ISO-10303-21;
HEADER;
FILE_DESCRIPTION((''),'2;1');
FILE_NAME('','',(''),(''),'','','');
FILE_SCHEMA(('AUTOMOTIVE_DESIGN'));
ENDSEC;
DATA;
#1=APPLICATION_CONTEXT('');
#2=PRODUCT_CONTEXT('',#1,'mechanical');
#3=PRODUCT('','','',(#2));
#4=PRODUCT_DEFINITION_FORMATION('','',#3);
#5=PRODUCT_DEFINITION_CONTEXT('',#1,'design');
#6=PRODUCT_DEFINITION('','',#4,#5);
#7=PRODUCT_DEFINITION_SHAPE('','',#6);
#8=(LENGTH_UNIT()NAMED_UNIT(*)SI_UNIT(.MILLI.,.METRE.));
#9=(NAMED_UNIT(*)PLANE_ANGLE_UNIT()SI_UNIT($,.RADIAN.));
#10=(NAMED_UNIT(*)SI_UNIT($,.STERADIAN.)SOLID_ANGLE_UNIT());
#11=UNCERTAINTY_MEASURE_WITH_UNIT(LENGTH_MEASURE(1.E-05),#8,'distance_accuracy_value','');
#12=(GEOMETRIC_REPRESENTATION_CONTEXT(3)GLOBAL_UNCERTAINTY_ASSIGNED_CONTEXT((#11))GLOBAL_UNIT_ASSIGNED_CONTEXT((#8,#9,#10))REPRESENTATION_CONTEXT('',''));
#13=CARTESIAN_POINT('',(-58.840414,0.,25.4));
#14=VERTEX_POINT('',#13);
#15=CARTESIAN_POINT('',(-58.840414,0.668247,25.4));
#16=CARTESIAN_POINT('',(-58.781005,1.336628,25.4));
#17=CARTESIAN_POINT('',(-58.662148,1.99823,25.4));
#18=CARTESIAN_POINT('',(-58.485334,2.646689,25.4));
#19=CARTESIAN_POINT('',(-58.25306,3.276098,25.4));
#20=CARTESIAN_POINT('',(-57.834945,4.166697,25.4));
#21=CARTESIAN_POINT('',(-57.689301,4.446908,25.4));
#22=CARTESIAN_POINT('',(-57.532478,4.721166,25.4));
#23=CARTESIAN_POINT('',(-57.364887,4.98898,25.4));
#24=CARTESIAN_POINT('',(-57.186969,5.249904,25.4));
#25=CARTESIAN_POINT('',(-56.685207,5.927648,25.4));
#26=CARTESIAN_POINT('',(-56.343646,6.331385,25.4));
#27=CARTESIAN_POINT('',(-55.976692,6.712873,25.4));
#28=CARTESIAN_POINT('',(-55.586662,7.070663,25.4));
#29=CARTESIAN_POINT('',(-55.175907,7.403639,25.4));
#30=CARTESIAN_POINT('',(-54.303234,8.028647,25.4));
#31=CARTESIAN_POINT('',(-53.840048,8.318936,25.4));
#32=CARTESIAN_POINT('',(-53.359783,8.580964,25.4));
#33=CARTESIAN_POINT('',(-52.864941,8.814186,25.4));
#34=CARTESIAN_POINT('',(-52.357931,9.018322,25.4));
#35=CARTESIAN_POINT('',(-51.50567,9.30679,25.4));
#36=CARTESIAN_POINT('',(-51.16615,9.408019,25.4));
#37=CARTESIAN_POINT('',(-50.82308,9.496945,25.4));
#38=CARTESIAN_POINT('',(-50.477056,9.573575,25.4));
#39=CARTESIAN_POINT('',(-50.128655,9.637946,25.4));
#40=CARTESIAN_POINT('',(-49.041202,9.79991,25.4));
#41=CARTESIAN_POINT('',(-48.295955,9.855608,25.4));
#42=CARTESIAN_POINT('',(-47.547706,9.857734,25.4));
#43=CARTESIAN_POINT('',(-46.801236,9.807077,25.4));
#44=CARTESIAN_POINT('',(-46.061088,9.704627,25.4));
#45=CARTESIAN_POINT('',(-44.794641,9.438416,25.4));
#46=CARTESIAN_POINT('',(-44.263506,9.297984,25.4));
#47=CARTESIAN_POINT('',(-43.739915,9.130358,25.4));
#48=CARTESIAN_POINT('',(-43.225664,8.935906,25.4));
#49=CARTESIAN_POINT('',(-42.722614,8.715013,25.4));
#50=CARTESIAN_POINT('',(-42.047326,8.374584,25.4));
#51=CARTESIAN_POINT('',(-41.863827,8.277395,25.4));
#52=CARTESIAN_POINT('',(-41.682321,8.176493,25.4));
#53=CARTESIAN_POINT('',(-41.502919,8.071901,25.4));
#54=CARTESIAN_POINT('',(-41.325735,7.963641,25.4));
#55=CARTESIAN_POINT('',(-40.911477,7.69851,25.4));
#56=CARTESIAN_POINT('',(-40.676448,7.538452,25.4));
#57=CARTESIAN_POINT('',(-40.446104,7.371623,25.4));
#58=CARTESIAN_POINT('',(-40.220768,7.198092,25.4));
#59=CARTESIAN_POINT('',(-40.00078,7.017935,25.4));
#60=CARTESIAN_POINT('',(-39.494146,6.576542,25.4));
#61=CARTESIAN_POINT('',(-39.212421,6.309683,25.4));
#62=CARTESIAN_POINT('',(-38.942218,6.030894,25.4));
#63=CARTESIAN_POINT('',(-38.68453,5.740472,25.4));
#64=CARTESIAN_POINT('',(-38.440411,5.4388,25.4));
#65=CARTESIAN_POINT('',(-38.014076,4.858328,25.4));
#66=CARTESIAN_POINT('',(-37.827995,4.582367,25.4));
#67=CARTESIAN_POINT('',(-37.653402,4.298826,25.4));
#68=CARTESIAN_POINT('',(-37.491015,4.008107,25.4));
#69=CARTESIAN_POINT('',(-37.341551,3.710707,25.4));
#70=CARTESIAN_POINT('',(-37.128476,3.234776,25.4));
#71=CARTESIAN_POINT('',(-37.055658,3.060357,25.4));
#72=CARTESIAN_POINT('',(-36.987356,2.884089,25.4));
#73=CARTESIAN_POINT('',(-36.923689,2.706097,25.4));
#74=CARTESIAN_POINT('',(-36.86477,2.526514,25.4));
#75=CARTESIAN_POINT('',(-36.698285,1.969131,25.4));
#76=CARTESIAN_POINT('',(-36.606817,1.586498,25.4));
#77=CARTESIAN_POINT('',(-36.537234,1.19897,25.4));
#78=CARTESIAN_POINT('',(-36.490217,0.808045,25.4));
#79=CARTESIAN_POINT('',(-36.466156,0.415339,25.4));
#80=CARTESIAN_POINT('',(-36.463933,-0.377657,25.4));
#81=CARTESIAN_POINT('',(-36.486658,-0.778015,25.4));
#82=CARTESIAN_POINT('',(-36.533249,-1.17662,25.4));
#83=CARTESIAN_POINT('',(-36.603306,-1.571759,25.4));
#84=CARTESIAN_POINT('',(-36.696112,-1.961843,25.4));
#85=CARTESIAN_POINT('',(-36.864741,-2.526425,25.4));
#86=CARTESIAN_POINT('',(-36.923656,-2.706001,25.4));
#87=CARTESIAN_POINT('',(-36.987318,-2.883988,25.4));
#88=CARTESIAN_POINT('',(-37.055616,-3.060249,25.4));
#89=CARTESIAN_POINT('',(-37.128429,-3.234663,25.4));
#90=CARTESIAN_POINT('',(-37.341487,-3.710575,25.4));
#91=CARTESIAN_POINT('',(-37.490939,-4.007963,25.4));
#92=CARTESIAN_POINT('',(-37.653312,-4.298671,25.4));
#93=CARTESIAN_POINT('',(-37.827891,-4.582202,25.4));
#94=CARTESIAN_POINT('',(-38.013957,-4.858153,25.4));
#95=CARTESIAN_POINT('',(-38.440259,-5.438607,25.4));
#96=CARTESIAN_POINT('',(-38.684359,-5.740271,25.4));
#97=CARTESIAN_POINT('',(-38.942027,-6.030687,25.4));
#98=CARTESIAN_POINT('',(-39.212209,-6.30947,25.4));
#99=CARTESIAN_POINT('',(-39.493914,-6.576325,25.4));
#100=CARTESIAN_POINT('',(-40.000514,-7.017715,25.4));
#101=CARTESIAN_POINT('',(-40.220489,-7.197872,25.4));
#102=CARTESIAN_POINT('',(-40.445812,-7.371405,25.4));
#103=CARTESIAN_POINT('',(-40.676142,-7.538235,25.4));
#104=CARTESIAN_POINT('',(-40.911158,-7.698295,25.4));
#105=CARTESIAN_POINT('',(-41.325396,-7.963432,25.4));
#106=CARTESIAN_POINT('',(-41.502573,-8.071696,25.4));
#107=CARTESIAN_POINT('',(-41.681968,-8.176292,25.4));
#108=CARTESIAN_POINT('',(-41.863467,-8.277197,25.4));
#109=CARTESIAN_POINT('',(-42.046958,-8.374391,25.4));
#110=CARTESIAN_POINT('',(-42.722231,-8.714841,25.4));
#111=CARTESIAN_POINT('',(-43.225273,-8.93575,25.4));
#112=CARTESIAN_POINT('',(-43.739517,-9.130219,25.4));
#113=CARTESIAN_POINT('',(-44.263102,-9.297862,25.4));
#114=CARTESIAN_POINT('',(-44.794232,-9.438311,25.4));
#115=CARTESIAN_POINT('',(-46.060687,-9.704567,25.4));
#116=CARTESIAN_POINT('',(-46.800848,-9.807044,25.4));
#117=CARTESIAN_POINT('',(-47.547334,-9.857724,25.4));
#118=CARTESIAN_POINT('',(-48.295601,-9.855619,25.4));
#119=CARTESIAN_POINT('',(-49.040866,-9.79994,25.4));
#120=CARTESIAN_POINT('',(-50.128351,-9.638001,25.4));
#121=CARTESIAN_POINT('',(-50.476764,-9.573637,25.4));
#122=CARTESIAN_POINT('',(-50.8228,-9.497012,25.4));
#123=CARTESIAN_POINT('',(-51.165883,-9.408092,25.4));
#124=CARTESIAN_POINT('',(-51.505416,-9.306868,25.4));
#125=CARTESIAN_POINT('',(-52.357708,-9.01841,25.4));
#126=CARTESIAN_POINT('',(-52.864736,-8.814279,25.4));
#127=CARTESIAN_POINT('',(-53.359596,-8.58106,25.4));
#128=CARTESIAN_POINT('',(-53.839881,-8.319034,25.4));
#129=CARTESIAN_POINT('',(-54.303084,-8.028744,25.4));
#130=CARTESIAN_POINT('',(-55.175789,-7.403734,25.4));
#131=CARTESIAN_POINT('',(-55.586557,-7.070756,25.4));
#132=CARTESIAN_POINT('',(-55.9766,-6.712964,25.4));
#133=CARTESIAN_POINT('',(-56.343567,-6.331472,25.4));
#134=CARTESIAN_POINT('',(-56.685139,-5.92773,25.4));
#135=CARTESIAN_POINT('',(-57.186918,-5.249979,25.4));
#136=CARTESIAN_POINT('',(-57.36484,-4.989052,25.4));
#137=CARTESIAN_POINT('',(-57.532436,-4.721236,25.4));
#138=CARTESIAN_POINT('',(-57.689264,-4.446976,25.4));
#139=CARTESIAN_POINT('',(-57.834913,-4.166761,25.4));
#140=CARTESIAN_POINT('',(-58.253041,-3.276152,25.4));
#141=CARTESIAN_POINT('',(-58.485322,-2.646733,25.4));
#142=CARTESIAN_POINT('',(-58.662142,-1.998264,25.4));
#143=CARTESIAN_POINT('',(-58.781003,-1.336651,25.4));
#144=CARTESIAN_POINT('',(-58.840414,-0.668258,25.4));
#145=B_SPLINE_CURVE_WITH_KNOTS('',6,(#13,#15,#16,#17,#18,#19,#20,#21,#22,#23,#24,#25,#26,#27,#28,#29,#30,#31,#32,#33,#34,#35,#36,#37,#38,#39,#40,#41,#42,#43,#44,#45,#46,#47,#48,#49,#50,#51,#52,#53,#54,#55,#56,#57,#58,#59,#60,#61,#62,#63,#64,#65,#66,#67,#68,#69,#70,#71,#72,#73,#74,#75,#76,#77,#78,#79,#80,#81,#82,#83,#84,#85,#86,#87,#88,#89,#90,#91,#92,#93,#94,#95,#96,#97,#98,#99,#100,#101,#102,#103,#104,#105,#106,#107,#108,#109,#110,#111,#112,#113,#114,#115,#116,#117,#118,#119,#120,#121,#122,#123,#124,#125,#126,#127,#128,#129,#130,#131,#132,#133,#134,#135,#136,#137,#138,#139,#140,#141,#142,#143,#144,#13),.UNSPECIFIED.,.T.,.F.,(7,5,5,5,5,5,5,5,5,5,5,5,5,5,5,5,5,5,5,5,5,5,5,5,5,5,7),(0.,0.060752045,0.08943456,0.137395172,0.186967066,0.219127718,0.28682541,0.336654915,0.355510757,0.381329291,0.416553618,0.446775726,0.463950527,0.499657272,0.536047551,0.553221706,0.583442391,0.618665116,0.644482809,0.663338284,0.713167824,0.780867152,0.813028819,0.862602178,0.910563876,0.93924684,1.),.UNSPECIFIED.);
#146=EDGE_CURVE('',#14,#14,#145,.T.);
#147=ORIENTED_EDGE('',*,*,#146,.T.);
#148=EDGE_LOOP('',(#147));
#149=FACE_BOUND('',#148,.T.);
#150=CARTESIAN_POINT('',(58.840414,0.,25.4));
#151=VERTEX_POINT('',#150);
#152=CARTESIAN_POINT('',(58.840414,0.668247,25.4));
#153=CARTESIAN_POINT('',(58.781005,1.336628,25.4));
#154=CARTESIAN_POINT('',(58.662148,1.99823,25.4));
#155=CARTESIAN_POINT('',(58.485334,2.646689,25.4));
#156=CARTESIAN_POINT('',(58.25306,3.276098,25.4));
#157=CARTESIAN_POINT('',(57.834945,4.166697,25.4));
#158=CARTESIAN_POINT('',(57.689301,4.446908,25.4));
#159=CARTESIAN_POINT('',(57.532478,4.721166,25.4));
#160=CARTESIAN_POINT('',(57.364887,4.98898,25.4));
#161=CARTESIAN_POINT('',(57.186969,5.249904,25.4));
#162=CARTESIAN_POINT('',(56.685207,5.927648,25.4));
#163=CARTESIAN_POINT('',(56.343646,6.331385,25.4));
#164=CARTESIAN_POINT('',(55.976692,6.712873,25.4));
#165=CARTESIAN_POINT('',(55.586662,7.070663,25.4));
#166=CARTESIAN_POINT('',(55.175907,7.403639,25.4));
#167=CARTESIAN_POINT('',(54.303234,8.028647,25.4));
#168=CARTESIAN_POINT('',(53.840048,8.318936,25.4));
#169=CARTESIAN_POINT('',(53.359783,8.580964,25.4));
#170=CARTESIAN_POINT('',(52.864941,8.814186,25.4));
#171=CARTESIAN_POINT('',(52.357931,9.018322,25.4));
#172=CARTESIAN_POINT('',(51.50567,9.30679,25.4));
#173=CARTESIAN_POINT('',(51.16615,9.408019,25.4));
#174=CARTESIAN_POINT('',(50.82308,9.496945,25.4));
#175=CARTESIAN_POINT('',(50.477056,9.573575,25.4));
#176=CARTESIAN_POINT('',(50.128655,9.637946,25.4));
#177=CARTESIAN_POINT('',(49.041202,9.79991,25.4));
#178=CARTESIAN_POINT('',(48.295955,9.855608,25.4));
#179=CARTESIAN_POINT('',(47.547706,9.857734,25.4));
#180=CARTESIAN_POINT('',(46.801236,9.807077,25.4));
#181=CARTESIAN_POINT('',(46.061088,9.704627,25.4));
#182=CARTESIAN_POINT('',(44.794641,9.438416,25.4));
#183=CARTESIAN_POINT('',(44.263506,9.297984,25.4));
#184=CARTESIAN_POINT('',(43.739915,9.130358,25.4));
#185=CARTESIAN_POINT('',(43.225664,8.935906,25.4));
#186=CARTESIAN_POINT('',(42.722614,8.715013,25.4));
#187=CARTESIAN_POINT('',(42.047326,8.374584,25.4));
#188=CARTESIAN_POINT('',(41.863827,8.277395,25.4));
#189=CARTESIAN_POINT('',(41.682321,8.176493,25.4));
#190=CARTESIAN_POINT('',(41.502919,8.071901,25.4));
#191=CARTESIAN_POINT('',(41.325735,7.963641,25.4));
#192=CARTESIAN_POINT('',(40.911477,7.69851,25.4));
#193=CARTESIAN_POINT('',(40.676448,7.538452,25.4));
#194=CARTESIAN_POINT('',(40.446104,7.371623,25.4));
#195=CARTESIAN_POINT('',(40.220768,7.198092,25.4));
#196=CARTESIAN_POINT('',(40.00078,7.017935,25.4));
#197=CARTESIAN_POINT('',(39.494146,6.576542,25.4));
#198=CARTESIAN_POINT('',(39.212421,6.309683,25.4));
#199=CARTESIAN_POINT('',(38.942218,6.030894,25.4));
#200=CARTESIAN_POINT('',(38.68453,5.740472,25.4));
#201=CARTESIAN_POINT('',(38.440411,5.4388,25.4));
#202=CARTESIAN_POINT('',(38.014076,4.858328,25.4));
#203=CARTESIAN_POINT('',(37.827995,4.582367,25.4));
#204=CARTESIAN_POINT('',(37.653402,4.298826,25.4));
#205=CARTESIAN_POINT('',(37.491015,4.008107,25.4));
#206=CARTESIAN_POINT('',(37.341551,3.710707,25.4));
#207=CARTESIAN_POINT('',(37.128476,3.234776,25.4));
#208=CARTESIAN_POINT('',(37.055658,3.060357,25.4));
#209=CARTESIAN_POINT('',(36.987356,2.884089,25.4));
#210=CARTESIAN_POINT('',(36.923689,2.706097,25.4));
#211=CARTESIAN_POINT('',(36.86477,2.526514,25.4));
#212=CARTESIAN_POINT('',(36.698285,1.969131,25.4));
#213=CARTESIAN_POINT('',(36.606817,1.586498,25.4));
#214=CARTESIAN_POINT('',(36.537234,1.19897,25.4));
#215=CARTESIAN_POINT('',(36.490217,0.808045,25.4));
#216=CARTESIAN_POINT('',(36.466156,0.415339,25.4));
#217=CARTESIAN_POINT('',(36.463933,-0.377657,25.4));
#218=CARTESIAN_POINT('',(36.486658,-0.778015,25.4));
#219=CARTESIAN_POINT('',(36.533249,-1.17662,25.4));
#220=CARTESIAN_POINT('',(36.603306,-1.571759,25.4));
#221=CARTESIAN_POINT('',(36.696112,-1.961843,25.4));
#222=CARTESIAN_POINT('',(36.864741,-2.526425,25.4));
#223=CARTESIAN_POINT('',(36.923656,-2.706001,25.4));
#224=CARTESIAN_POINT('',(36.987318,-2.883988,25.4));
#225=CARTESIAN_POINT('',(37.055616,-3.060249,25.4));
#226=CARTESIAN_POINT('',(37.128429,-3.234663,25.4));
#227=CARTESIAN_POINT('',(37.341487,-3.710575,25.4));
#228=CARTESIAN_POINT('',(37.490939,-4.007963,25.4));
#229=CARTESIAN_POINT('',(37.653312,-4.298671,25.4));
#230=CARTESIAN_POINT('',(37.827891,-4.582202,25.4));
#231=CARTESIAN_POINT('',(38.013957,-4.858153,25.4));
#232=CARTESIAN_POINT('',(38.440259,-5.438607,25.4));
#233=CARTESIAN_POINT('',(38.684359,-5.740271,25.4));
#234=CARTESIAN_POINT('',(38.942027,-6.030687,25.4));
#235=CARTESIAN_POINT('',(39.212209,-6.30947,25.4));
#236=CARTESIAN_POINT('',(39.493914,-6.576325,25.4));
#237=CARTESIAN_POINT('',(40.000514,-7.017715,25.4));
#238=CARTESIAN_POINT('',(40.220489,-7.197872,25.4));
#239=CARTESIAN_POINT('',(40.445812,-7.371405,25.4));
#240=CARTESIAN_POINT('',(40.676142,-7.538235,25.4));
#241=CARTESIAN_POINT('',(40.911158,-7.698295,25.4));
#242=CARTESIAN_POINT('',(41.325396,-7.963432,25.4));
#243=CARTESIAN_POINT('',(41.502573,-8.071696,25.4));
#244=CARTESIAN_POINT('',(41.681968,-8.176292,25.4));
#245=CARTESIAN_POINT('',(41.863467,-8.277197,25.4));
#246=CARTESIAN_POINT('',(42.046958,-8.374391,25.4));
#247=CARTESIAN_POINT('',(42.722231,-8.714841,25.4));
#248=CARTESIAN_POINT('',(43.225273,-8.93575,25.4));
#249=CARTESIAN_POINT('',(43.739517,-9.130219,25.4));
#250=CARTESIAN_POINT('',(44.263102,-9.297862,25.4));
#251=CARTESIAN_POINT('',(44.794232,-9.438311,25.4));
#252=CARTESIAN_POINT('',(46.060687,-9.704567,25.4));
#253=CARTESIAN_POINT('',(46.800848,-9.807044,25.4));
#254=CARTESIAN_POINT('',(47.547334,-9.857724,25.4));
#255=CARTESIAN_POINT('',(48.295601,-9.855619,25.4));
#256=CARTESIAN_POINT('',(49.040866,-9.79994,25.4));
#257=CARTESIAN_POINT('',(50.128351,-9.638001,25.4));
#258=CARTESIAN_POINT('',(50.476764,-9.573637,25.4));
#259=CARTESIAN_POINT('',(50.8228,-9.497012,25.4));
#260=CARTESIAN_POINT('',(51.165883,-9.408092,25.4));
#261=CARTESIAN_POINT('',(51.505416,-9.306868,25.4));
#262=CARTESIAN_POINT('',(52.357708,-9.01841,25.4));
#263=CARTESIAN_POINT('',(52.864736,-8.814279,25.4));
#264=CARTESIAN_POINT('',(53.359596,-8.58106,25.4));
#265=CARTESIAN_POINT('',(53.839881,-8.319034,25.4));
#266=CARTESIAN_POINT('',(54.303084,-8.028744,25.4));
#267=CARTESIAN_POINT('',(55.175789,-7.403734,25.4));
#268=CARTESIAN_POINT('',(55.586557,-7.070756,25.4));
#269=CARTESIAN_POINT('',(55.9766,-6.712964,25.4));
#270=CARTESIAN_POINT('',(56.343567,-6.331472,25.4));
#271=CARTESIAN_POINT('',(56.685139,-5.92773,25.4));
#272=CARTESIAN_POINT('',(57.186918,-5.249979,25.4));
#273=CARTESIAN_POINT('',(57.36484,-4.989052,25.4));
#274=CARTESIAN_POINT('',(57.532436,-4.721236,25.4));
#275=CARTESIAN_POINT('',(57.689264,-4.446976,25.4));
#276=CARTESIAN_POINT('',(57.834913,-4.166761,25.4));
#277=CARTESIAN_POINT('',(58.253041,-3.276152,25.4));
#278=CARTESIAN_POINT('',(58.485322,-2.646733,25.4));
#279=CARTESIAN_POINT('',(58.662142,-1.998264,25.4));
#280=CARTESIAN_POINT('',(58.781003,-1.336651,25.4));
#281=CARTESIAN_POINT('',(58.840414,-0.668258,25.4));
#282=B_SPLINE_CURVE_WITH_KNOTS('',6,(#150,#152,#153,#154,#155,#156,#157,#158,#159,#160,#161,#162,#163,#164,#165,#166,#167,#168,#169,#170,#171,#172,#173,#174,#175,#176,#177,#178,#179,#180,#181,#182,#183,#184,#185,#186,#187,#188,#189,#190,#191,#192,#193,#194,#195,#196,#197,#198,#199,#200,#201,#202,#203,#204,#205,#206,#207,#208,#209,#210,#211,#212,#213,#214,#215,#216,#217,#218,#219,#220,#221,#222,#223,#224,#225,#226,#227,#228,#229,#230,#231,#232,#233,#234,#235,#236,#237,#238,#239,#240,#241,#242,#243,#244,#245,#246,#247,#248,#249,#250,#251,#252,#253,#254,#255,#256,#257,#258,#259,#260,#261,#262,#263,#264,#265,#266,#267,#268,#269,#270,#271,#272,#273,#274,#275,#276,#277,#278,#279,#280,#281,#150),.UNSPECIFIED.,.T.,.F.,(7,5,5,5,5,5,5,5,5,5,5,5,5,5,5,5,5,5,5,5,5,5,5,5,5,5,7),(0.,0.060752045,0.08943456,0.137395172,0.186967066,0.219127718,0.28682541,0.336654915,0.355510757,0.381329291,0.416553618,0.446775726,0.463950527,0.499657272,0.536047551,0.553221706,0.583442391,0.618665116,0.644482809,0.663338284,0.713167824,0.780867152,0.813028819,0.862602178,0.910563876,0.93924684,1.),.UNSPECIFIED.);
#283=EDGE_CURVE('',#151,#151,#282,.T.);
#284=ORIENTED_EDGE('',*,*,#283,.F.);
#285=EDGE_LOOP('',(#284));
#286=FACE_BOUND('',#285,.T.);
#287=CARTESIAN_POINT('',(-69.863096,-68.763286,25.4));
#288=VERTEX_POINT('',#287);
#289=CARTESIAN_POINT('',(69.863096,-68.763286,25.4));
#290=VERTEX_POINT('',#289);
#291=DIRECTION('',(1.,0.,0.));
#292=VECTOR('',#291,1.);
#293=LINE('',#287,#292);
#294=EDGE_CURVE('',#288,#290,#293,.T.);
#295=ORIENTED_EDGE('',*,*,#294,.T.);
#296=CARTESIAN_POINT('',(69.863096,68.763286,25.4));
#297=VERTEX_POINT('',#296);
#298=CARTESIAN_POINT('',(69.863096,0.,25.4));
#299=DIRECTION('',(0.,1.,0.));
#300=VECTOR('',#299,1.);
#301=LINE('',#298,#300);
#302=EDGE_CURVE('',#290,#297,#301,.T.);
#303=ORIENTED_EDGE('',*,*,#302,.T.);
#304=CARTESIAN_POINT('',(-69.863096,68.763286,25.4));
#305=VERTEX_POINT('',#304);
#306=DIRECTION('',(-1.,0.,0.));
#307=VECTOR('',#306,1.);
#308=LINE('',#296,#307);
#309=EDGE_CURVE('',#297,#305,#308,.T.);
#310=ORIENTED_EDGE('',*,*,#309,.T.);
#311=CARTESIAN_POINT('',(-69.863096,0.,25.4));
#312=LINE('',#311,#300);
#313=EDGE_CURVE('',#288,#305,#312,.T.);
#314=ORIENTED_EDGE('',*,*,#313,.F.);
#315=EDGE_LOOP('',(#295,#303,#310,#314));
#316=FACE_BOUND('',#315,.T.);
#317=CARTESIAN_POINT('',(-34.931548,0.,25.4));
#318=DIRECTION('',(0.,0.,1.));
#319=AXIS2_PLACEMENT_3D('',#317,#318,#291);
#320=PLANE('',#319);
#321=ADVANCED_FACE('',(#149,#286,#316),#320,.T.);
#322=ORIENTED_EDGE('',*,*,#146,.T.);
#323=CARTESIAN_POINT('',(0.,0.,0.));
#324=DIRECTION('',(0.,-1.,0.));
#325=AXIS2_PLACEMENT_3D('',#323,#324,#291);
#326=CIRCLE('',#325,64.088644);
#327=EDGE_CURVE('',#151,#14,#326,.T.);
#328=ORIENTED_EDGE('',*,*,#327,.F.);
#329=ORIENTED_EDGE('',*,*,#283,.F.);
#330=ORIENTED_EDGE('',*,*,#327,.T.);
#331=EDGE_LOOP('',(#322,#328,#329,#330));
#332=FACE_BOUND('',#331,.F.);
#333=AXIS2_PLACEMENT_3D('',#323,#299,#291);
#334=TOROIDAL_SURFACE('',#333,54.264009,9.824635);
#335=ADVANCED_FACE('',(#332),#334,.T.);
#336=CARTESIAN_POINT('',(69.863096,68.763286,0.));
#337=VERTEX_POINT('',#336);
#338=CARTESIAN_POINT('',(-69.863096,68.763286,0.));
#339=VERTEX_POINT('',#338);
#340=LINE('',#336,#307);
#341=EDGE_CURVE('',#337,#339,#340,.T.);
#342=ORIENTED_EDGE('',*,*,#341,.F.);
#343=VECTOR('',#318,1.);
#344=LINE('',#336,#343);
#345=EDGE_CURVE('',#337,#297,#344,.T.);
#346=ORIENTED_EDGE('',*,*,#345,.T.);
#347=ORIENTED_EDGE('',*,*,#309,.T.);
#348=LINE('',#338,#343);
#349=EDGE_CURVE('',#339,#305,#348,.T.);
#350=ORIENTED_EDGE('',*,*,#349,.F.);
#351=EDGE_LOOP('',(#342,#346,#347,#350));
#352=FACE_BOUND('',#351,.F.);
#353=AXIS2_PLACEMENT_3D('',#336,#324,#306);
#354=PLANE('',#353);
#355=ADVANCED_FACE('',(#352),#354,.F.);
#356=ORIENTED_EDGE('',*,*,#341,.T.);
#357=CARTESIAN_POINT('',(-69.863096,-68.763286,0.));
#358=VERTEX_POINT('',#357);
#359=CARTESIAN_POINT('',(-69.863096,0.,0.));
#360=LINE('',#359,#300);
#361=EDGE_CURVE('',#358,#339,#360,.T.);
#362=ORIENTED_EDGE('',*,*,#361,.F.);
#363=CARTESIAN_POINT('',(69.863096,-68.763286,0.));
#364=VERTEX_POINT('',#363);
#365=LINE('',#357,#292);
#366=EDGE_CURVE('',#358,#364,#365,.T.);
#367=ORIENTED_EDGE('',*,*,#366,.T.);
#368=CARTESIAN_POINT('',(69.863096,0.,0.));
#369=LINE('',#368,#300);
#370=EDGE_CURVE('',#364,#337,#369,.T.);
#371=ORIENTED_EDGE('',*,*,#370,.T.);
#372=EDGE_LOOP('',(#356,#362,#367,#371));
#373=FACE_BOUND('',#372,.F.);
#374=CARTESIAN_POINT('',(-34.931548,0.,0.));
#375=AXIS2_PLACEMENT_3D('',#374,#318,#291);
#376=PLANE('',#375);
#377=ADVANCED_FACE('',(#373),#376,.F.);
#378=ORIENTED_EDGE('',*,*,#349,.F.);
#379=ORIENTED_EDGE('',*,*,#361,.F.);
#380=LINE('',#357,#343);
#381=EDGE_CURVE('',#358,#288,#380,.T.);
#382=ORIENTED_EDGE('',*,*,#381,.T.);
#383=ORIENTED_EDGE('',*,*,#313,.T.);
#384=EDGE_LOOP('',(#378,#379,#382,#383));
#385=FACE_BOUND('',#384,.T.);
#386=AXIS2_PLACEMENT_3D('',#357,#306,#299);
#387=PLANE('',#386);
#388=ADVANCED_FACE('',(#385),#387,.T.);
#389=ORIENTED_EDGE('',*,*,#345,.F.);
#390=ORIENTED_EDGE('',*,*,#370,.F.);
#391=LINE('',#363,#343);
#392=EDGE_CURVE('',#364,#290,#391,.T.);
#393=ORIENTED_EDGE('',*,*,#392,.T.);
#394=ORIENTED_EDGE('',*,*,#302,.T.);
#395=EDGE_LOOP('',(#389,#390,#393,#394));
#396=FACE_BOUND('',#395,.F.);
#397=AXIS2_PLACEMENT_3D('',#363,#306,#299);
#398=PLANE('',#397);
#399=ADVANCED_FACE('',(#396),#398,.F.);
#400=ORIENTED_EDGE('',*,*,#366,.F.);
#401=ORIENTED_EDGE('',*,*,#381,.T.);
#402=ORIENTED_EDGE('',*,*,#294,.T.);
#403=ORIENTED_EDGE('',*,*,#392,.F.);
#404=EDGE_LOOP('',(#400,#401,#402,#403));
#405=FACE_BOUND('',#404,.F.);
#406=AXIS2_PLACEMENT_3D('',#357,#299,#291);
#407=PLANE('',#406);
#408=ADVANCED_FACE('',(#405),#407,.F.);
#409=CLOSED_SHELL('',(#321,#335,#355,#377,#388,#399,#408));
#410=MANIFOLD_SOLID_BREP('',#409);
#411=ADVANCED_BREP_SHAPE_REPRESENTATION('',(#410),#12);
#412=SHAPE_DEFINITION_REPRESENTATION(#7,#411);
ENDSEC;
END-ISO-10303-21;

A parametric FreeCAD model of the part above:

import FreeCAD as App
import Part
import Sketcher
from FreeCAD import Vector
Q = App.Units.Quantity

doc = App.newDocument("Part")
body = doc.addObject("PartDesign::Body", "Body")

sketch1 = body.newObject("Sketcher::SketchObject", "Sketch")
sketch1.AttachmentSupport = (doc.getObject("XY_Plane"), [""])
sketch1.MapMode = "FlatFace"
sketch1.addGeometry(Part.Circle(Vector(54, 0, 0), Vector(0, 0, 1), 10), False)
sketch1.addConstraint([
    Sketcher.Constraint("PointOnObject", 0, 3, -1),
    Sketcher.Constraint("Diameter", 0, Q("19.64927 mm")),
    Sketcher.Constraint("DistanceX", -1, 1, 0, 3, Q("54.264009 mm")),
])
revolution = body.newObject("PartDesign::Revolution", "Revolution")
revolution.Profile = sketch1
revolution.ReferenceAxis = (sketch1, ["V_Axis"])
revolution.Angle = 180
revolution.Reversed = True

sketch2 = body.newObject("Sketcher::SketchObject", "Sketch001")
sketch2.AttachmentSupport = (doc.getObject("XY_Plane"), [""])
sketch2.MapMode = "FlatFace"
sketch2.addGeometry([
    Part.LineSegment(Vector(-70, 69, 0), Vector(-70, -69, 0)),
    Part.LineSegment(Vector(-70, -69, 0), Vector(70, -69, 0)),
    Part.LineSegment(Vector(70, -69, 0), Vector(70, 69, 0)),
    Part.LineSegment(Vector(70, 69, 0), Vector(-70, 69, 0)),
], False)
sketch2.addConstraint([
    Sketcher.Constraint("Coincident", 0, 2, 1, 1),
    Sketcher.Constraint("Coincident", 1, 2, 2, 1),
    Sketcher.Constraint("Coincident", 2, 2, 3, 1),
    Sketcher.Constraint("Coincident", 3, 2, 0, 1),
    Sketcher.Constraint("Vertical", 0),
    Sketcher.Constraint("Horizontal", 1),
    Sketcher.Constraint("Vertical", 2),
    Sketcher.Constraint("Horizontal", 3),
    Sketcher.Constraint("Symmetric", 0, 2, 2, 2, -1, 1),
    Sketcher.Constraint("DistanceX", 1, 1, 1, 2, Q("139.726192 mm")),
    Sketcher.Constraint("DistanceY", 0, 2, 0, 1, Q("137.526572 mm")),
])
pad1 = body.newObject("PartDesign::Pad", "Pad")
pad1.Profile = sketch2
pad1.Length = Q("1 in")

doc.recompute()
